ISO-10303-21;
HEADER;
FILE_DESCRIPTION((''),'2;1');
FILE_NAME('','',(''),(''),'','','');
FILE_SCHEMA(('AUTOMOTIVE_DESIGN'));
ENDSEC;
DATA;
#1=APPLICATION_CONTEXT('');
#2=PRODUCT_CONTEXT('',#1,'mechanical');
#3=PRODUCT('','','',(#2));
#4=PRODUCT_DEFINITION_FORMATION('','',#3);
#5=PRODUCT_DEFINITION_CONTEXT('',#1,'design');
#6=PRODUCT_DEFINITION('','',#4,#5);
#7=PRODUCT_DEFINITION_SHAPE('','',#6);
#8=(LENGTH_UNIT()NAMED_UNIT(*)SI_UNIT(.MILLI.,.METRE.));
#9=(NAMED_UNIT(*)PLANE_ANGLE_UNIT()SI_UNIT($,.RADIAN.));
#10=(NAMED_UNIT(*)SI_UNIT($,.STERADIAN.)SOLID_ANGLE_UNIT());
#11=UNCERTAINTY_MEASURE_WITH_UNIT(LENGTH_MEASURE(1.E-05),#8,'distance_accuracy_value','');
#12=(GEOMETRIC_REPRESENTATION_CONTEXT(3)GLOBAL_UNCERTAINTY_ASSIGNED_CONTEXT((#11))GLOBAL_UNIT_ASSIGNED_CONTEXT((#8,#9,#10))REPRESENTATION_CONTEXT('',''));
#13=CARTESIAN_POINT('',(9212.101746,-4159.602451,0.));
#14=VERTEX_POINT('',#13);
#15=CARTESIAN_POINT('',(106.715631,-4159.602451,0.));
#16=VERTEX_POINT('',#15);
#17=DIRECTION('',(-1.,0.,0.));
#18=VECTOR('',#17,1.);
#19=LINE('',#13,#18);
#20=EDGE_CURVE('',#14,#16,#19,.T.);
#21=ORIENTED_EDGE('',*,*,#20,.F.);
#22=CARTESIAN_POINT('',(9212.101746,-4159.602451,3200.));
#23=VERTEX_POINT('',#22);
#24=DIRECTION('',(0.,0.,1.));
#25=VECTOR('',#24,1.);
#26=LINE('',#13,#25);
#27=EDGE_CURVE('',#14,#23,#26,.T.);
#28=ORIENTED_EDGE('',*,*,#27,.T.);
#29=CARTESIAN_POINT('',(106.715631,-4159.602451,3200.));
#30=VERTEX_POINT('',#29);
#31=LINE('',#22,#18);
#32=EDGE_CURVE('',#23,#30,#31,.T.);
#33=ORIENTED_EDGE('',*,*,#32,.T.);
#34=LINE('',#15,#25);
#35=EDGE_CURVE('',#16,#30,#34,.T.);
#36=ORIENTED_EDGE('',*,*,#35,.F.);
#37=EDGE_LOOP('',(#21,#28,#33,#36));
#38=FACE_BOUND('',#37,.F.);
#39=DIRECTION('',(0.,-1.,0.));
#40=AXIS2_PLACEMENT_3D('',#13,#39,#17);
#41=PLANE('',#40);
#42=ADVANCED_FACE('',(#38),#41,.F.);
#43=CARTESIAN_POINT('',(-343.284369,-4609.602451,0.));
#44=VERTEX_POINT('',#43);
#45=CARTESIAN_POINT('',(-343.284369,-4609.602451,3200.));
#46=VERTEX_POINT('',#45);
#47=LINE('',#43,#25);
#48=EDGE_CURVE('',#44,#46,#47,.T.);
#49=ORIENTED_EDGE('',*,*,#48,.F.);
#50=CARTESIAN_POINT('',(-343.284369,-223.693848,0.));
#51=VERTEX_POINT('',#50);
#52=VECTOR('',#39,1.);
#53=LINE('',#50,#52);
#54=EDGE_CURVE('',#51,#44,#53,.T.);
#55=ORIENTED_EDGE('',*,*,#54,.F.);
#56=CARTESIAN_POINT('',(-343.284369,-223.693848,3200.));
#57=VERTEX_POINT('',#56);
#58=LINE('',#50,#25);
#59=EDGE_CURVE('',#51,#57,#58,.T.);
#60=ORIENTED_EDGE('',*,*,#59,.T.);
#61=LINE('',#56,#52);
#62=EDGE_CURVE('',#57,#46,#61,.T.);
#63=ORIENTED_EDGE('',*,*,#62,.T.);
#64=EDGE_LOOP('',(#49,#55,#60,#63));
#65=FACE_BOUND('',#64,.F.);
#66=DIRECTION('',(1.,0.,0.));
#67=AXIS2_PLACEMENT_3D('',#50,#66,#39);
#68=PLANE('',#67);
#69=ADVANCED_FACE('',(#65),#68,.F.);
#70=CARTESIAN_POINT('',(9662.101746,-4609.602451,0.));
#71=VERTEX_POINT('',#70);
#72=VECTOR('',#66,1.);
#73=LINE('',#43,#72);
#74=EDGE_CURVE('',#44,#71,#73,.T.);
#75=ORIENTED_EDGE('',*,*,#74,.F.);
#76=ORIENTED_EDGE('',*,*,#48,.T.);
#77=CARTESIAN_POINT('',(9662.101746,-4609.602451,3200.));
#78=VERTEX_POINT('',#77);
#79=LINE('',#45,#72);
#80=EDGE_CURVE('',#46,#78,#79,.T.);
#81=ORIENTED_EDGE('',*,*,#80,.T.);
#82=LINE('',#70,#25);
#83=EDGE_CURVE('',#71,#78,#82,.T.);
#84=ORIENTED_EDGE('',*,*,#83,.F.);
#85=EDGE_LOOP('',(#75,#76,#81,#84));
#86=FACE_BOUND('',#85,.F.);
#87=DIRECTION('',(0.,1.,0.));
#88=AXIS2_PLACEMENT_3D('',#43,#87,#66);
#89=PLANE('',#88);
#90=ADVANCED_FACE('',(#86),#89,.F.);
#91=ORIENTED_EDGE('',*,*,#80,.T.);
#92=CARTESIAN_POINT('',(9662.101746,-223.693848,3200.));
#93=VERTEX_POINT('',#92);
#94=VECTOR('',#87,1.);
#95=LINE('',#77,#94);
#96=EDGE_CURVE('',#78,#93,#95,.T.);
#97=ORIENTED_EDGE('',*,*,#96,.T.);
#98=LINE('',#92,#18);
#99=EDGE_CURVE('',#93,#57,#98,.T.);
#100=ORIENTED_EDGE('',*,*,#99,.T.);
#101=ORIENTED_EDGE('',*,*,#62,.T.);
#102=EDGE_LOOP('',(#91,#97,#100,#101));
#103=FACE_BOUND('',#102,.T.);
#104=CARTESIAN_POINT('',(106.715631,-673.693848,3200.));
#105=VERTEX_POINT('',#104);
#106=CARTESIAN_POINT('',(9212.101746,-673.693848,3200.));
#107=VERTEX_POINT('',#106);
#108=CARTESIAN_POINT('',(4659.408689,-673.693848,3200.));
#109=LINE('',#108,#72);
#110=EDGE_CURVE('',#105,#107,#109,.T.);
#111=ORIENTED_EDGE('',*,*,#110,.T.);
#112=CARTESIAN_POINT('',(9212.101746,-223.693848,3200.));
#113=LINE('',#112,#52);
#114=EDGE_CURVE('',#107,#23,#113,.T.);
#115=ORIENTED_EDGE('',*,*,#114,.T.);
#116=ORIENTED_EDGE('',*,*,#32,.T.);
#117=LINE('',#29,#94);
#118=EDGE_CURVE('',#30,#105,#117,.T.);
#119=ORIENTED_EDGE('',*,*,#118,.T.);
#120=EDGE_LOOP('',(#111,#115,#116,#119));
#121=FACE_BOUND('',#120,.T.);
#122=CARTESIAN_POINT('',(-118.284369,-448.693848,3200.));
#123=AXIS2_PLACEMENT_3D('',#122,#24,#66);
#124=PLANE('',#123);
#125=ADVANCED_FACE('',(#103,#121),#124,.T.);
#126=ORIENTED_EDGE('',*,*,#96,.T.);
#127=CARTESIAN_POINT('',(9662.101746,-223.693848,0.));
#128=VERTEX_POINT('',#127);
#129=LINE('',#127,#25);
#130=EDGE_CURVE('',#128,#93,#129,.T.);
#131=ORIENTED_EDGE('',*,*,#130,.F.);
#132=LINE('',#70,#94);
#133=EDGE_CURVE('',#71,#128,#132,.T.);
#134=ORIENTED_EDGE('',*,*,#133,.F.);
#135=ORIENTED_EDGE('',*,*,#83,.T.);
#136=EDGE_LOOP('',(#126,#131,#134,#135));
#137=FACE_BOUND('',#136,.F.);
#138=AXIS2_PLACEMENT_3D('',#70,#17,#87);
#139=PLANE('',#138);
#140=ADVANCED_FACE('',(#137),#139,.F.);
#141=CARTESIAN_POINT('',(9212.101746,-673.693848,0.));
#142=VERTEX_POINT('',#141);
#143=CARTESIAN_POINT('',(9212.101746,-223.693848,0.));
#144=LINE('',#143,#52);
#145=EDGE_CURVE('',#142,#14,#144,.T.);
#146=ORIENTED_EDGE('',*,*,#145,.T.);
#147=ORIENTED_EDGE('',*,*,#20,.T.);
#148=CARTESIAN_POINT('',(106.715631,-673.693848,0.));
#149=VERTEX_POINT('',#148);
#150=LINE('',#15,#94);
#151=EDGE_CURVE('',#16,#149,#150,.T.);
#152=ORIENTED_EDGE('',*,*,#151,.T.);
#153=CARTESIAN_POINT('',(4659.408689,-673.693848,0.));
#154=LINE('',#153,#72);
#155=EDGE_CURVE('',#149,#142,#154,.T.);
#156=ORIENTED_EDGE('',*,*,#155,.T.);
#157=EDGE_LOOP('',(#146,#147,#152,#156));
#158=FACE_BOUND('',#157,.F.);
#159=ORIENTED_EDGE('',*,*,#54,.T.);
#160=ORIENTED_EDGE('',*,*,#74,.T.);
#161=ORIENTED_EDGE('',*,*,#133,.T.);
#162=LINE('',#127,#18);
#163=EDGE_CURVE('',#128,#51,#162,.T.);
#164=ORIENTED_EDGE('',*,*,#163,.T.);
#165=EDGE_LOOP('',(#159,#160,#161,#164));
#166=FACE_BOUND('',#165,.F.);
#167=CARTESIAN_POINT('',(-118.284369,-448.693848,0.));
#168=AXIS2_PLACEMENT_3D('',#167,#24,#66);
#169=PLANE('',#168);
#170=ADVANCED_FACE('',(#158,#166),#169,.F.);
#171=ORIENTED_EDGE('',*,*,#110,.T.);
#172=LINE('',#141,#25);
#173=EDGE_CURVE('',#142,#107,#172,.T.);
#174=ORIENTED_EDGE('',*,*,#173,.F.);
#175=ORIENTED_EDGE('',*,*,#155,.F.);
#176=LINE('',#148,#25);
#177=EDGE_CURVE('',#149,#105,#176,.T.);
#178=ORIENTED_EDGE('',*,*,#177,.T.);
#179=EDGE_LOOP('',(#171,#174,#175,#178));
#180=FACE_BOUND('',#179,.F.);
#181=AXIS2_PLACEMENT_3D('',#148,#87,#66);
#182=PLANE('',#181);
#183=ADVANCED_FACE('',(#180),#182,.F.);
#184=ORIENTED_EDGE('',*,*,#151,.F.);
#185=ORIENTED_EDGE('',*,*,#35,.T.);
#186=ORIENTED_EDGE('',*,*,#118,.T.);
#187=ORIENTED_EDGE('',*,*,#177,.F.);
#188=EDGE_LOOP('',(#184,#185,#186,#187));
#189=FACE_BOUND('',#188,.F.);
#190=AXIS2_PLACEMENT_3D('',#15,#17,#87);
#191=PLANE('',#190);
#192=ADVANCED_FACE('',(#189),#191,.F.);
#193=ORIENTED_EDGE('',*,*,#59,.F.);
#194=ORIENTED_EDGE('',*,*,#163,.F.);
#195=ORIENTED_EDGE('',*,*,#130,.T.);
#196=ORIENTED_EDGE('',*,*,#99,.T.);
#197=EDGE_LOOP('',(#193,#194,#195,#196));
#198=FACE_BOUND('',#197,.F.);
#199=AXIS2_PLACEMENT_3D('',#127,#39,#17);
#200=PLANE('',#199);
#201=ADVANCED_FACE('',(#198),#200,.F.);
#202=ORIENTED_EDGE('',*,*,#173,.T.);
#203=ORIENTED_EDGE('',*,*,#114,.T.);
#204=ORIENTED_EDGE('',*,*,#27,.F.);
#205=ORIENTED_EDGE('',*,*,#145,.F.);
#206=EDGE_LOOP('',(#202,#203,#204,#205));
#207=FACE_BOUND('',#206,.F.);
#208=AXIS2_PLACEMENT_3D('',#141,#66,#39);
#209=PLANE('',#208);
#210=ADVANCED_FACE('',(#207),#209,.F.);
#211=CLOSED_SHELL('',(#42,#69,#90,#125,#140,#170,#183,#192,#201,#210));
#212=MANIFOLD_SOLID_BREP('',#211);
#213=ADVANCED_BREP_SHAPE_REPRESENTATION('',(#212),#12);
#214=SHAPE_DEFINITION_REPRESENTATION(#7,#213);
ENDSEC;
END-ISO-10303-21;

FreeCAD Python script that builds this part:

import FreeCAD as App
import Part
import Sketcher


def add_polygon(sketch, points):
    """Adds a closed chain of lines whose ends are joined by coincident constraints."""
    first, n = sketch.GeometryCount, len(points)
    for a, b in zip(points, points[1:] + points[:1]):
        sketch.addGeometry(Part.LineSegment(App.Vector(*a, 0), App.Vector(*b, 0)), False)
    for i in range(n):
        sketch.addConstraint(Sketcher.Constraint("Coincident", first + i, 2, first + (i + 1) % n, 1))

doc = App.newDocument("Part")
body = doc.addObject("PartDesign::Body", "Body")

# Sketch on XY plane
sketch1 = body.newObject("Sketcher::SketchObject", "Sketch")
sketch1.AttachmentSupport = (doc.getObject("XY_Plane"), [""])
sketch1.MapMode = "FlatFace"
add_polygon(sketch1, [(-343, -224), (-343, -4610), (9662, -4610), (9662, -224)])  # lines 0-3
add_polygon(sketch1, [(9212, -674), (9212, -4160), (107, -4160), (107, -674)])  # lines 4-7
sketch1.addConstraint([
    Sketcher.Constraint("Vertical", 0),
    Sketcher.Constraint("Horizontal", 1),
    Sketcher.Constraint("Vertical", 2),
    Sketcher.Constraint("Horizontal", 3),
    Sketcher.Constraint("Vertical", 4),
    Sketcher.Constraint("Horizontal", 5),
    Sketcher.Constraint("Vertical", 6),
    Sketcher.Constraint("Horizontal", 7),
    Sketcher.Constraint("DistanceX", 4, 2, 1, 2, 450.0),
    Sketcher.Constraint("DistanceY", 1, 2, 4, 2, 450.0),
    Sketcher.Constraint("DistanceX", 0, 2, 5, 2, 450.0),
    Sketcher.Constraint("DistanceY", 6, 2, 3, 2, 450.0),
    Sketcher.Constraint("DistanceX", 1, 1, 1, 2, 10005.386114),
    Sketcher.Constraint("DistanceY", 0, 2, 0, 1, 4385.908604),
    Sketcher.Constraint("DistanceX", 0, 2, -1, 1, 343.284369),
    Sketcher.Constraint("DistanceY", 0, 2, -1, 1, 4609.602451),
])
pad1 = body.newObject("PartDesign::Pad", "Pad")
pad1.Profile = sketch1
pad1.Length = 3200

doc.recompute()
